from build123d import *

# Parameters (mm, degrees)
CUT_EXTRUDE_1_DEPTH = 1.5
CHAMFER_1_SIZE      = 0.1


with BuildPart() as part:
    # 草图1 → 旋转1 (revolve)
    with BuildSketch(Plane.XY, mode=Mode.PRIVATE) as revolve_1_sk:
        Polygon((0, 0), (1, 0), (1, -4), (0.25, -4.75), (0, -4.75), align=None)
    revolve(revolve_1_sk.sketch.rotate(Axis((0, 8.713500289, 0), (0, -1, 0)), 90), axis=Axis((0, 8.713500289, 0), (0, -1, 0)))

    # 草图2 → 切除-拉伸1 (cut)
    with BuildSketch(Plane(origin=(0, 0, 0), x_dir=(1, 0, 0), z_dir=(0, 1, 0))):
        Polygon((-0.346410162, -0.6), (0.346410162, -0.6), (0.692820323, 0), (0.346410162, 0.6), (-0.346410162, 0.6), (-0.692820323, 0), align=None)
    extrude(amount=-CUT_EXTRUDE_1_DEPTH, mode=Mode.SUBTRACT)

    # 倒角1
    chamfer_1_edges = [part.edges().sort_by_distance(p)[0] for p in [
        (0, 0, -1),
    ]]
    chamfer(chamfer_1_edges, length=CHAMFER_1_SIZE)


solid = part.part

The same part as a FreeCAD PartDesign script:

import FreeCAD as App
import Part
import Sketcher
from FreeCAD import Vector
Q = App.Units.Quantity


def edges_at(feature, points):
    """Names of the edges that pass closest to the given points."""
    edges = feature.Shape.Edges
    near = lambda p: min(range(len(edges)), key=lambda i: edges[i].distToShape(Part.Vertex(*p))[0])
    return sorted({f"Edge{near(p) + 1}" for p in points})


def add_polygon(sketch, points):
    """Adds a closed chain of lines whose ends are joined by coincident constraints."""
    first, n = sketch.GeometryCount, len(points)
    for a, b in zip(points, points[1:] + points[:1]):
        sketch.addGeometry(Part.LineSegment(App.Vector(*a, 0), App.Vector(*b, 0)), False)
    for i in range(n):
        sketch.addConstraint(Sketcher.Constraint("Coincident", first + i, 2, first + (i + 1) % n, 1))

doc = App.newDocument("Part")
params = doc.addObject("Spreadsheet::Sheet", "Params")
for row, (alias, value) in enumerate([
    ("sketch1_width", "1 mm"),
    ("sketch1_height", "4 mm"),
    ("sketch1_width2", "0.25 mm"),
    ("revolution_angle", "360 deg"),
    ("pocket1_length", "1.5 mm"),
    ("chamfer_size", "0.1 mm"),
], start=1):
    params.set(f"A{row}", alias)
    params.set(f"B{row}", "=" + value)
    params.setAlias(f"B{row}", alias)

body = doc.addObject("PartDesign::Body", "Body")

# Sketch on XY plane
sketch1 = body.newObject("Sketcher::SketchObject", "Sketch")
sketch1.AttachmentSupport = (doc.getObject("XY_Plane"), [""])
sketch1.MapMode = "FlatFace"
add_polygon(sketch1, [(1, 0), (0, 0), (0, -4.75), (0.25, -4.75), (1, -4)])  # lines 0-4
sketch1.addConstraint(Sketcher.Constraint("Horizontal", 0))
sketch1.addConstraint(Sketcher.Constraint("Vertical", 1))
sketch1.addConstraint(Sketcher.Constraint("Horizontal", 2))
sketch1.addConstraint(Sketcher.Constraint("Vertical", 4))
sketch1.addConstraint(Sketcher.Constraint("Coincident", 0, 2, -1, 1))
sketch1.addConstraint(Sketcher.Constraint("DistanceX", 0, 2, 0, 1, Q("1 mm")))
sketch1.addConstraint(Sketcher.Constraint("DistanceY", 4, 1, 4, 2, Q("4 mm")))
sketch1.addConstraint(Sketcher.Constraint("Angle", 3, Q("45 deg")))
sketch1.addConstraint(Sketcher.Constraint("DistanceX", 2, 1, 2, 2, Q("0.25 mm")))
sketch1.setExpression("Constraints[10]", "Params.sketch1_width")
sketch1.setExpression("Constraints[11]", "Params.sketch1_height")
sketch1.setExpression("Constraints[13]", "Params.sketch1_width2")
revolution = body.newObject("PartDesign::Revolution", "Revolution")
revolution.Profile = sketch1
revolution.ReferenceAxis = (sketch1, ["V_Axis"])
revolution.setExpression("Angle", "Params.revolution_angle")

# Sketch on XZ plane
sketch2 = body.newObject("Sketcher::SketchObject", "Sketch001")
sketch2.AttachmentSupport = (doc.getObject("XZ_Plane"), [""])
sketch2.MapMode = "FlatFace"
add_polygon(sketch2, [(-0.3, 0.6), (0.3, 0.6), (0.7, 0), (0.3, -0.6), (-0.3, -0.6), (-0.7, 0)])  # lines 0-5
sketch2.addConstraint(Sketcher.Constraint("Horizontal", 0))
sketch2.addConstraint(Sketcher.Constraint("Horizontal", 3))
sketch2.addConstraint(Sketcher.Constraint("Symmetric", 0, 2, 3, 2, -1, 1))
sketch2.addConstraint(Sketcher.Constraint("Symmetric", 1, 2, 4, 2, -1, 1))
sketch2.addConstraint(Sketcher.Constraint("PointOnObject", 1, 2, -1))
sketch2.addConstraint(Sketcher.Constraint("Parallel", 2, 5))
sketch2.addConstraint(Sketcher.Constraint("Vertical", 0, 2, 2, 2))
sketch2.addConstraint(Sketcher.Constraint("Angle", 1, Q("-60 deg")))
sketch2.addConstraint(Sketcher.Constraint("DistanceY", -1, 1, 0, 2, Q("0.6 mm")))
sketch2.addConstraint(Sketcher.Constraint("DistanceX", 0, 1, 0, 2, Q("0.69282 mm")))
pocket1 = body.newObject("PartDesign::Pocket", "Pocket")
pocket1.Profile = sketch2
pocket1.setExpression("Length", "Params.pocket1_length")
pocket1.Reversed = True
doc.recompute()

chamfer = body.newObject("PartDesign::Chamfer", "Chamfer")
chamfer.Base = (pocket1, edges_at(pocket1, [(0, 0, -1)]))
chamfer.setExpression("Size", "Params.chamfer_size")

doc.recompute()
